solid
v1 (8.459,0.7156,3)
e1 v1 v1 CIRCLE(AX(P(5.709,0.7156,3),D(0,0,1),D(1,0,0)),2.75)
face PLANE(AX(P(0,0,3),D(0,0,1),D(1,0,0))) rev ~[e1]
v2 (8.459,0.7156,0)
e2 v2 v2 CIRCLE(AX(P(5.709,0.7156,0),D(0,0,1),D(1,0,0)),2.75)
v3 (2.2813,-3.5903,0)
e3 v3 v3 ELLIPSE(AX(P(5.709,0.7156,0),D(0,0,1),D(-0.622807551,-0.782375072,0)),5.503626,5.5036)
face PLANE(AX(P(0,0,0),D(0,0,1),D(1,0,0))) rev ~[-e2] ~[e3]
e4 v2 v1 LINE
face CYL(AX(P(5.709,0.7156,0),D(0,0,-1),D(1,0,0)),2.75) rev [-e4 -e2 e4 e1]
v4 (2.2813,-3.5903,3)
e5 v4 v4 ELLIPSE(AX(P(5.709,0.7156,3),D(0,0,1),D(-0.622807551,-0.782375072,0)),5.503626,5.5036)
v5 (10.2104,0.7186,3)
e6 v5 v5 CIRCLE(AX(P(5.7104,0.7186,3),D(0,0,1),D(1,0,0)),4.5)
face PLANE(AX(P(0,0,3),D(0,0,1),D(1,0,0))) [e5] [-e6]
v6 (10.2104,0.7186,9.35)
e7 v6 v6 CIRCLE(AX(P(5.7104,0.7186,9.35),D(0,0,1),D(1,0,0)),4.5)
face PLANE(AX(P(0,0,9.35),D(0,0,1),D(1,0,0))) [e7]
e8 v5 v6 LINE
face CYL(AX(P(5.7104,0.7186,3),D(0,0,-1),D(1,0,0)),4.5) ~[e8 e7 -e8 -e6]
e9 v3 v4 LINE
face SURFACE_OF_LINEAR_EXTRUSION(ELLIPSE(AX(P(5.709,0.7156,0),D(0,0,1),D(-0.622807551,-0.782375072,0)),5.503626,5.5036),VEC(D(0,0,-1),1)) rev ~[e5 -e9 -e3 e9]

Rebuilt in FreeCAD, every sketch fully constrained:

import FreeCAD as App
import Part
import Sketcher

V = App.Vector

doc = App.newDocument("Part")
body = doc.addObject("PartDesign::Body", "Body")

sketch1 = body.newObject("Sketcher::SketchObject", "Sketch")
sketch1.AttachmentSupport = (doc.getObject("XY_Plane"), [""])
sketch1.MapMode = "FlatFace"
sketch1.addGeometry(Part.Ellipse(V(2.2813, -3.5903, 0), V(10.014879, -2.712084, 0), V(5.709, 0.7156, 0)), False)
sketch1.addGeometry(Part.Circle(V(5.709, 0.7156, 0), V(0, 0, 1), 2.75), False)
sketch1.addConstraint(Sketcher.Constraint("Block", 0))
sketch1.addConstraint(Sketcher.Constraint("Diameter", 1, 5.5))
sketch1.addConstraint(Sketcher.Constraint("DistanceX", -1, 1, 1, 3, 5.709))
sketch1.addConstraint(Sketcher.Constraint("DistanceY", -1, 1, 1, 3, 0.7156))
pad1 = body.newObject("PartDesign::Pad", "Pad")
pad1.Profile = sketch1
pad1.Length = 3

sketch2 = body.newObject("Sketcher::SketchObject", "Sketch001")
sketch2.AttachmentSupport = (doc.getObject("XY_Plane"), [""])
sketch2.MapMode = "FlatFace"
sketch2.AttachmentOffset = App.Placement(V(0, 0, 3), App.Rotation())
sketch2.addGeometry(Part.Circle(V(5.7104, 0.7186, 0), V(0, 0, 1), 4.5), False)
sketch2.addConstraint(Sketcher.Constraint("Diameter", 0, 9.0))
sketch2.addConstraint(Sketcher.Constraint("DistanceX", -1, 1, 0, 3, 5.7104))
sketch2.addConstraint(Sketcher.Constraint("DistanceY", -1, 1, 0, 3, 0.7186))
pad2 = body.newObject("PartDesign::Pad", "Pad001")
pad2.Profile = sketch2
pad2.Length = 6.35

doc.recompute()
